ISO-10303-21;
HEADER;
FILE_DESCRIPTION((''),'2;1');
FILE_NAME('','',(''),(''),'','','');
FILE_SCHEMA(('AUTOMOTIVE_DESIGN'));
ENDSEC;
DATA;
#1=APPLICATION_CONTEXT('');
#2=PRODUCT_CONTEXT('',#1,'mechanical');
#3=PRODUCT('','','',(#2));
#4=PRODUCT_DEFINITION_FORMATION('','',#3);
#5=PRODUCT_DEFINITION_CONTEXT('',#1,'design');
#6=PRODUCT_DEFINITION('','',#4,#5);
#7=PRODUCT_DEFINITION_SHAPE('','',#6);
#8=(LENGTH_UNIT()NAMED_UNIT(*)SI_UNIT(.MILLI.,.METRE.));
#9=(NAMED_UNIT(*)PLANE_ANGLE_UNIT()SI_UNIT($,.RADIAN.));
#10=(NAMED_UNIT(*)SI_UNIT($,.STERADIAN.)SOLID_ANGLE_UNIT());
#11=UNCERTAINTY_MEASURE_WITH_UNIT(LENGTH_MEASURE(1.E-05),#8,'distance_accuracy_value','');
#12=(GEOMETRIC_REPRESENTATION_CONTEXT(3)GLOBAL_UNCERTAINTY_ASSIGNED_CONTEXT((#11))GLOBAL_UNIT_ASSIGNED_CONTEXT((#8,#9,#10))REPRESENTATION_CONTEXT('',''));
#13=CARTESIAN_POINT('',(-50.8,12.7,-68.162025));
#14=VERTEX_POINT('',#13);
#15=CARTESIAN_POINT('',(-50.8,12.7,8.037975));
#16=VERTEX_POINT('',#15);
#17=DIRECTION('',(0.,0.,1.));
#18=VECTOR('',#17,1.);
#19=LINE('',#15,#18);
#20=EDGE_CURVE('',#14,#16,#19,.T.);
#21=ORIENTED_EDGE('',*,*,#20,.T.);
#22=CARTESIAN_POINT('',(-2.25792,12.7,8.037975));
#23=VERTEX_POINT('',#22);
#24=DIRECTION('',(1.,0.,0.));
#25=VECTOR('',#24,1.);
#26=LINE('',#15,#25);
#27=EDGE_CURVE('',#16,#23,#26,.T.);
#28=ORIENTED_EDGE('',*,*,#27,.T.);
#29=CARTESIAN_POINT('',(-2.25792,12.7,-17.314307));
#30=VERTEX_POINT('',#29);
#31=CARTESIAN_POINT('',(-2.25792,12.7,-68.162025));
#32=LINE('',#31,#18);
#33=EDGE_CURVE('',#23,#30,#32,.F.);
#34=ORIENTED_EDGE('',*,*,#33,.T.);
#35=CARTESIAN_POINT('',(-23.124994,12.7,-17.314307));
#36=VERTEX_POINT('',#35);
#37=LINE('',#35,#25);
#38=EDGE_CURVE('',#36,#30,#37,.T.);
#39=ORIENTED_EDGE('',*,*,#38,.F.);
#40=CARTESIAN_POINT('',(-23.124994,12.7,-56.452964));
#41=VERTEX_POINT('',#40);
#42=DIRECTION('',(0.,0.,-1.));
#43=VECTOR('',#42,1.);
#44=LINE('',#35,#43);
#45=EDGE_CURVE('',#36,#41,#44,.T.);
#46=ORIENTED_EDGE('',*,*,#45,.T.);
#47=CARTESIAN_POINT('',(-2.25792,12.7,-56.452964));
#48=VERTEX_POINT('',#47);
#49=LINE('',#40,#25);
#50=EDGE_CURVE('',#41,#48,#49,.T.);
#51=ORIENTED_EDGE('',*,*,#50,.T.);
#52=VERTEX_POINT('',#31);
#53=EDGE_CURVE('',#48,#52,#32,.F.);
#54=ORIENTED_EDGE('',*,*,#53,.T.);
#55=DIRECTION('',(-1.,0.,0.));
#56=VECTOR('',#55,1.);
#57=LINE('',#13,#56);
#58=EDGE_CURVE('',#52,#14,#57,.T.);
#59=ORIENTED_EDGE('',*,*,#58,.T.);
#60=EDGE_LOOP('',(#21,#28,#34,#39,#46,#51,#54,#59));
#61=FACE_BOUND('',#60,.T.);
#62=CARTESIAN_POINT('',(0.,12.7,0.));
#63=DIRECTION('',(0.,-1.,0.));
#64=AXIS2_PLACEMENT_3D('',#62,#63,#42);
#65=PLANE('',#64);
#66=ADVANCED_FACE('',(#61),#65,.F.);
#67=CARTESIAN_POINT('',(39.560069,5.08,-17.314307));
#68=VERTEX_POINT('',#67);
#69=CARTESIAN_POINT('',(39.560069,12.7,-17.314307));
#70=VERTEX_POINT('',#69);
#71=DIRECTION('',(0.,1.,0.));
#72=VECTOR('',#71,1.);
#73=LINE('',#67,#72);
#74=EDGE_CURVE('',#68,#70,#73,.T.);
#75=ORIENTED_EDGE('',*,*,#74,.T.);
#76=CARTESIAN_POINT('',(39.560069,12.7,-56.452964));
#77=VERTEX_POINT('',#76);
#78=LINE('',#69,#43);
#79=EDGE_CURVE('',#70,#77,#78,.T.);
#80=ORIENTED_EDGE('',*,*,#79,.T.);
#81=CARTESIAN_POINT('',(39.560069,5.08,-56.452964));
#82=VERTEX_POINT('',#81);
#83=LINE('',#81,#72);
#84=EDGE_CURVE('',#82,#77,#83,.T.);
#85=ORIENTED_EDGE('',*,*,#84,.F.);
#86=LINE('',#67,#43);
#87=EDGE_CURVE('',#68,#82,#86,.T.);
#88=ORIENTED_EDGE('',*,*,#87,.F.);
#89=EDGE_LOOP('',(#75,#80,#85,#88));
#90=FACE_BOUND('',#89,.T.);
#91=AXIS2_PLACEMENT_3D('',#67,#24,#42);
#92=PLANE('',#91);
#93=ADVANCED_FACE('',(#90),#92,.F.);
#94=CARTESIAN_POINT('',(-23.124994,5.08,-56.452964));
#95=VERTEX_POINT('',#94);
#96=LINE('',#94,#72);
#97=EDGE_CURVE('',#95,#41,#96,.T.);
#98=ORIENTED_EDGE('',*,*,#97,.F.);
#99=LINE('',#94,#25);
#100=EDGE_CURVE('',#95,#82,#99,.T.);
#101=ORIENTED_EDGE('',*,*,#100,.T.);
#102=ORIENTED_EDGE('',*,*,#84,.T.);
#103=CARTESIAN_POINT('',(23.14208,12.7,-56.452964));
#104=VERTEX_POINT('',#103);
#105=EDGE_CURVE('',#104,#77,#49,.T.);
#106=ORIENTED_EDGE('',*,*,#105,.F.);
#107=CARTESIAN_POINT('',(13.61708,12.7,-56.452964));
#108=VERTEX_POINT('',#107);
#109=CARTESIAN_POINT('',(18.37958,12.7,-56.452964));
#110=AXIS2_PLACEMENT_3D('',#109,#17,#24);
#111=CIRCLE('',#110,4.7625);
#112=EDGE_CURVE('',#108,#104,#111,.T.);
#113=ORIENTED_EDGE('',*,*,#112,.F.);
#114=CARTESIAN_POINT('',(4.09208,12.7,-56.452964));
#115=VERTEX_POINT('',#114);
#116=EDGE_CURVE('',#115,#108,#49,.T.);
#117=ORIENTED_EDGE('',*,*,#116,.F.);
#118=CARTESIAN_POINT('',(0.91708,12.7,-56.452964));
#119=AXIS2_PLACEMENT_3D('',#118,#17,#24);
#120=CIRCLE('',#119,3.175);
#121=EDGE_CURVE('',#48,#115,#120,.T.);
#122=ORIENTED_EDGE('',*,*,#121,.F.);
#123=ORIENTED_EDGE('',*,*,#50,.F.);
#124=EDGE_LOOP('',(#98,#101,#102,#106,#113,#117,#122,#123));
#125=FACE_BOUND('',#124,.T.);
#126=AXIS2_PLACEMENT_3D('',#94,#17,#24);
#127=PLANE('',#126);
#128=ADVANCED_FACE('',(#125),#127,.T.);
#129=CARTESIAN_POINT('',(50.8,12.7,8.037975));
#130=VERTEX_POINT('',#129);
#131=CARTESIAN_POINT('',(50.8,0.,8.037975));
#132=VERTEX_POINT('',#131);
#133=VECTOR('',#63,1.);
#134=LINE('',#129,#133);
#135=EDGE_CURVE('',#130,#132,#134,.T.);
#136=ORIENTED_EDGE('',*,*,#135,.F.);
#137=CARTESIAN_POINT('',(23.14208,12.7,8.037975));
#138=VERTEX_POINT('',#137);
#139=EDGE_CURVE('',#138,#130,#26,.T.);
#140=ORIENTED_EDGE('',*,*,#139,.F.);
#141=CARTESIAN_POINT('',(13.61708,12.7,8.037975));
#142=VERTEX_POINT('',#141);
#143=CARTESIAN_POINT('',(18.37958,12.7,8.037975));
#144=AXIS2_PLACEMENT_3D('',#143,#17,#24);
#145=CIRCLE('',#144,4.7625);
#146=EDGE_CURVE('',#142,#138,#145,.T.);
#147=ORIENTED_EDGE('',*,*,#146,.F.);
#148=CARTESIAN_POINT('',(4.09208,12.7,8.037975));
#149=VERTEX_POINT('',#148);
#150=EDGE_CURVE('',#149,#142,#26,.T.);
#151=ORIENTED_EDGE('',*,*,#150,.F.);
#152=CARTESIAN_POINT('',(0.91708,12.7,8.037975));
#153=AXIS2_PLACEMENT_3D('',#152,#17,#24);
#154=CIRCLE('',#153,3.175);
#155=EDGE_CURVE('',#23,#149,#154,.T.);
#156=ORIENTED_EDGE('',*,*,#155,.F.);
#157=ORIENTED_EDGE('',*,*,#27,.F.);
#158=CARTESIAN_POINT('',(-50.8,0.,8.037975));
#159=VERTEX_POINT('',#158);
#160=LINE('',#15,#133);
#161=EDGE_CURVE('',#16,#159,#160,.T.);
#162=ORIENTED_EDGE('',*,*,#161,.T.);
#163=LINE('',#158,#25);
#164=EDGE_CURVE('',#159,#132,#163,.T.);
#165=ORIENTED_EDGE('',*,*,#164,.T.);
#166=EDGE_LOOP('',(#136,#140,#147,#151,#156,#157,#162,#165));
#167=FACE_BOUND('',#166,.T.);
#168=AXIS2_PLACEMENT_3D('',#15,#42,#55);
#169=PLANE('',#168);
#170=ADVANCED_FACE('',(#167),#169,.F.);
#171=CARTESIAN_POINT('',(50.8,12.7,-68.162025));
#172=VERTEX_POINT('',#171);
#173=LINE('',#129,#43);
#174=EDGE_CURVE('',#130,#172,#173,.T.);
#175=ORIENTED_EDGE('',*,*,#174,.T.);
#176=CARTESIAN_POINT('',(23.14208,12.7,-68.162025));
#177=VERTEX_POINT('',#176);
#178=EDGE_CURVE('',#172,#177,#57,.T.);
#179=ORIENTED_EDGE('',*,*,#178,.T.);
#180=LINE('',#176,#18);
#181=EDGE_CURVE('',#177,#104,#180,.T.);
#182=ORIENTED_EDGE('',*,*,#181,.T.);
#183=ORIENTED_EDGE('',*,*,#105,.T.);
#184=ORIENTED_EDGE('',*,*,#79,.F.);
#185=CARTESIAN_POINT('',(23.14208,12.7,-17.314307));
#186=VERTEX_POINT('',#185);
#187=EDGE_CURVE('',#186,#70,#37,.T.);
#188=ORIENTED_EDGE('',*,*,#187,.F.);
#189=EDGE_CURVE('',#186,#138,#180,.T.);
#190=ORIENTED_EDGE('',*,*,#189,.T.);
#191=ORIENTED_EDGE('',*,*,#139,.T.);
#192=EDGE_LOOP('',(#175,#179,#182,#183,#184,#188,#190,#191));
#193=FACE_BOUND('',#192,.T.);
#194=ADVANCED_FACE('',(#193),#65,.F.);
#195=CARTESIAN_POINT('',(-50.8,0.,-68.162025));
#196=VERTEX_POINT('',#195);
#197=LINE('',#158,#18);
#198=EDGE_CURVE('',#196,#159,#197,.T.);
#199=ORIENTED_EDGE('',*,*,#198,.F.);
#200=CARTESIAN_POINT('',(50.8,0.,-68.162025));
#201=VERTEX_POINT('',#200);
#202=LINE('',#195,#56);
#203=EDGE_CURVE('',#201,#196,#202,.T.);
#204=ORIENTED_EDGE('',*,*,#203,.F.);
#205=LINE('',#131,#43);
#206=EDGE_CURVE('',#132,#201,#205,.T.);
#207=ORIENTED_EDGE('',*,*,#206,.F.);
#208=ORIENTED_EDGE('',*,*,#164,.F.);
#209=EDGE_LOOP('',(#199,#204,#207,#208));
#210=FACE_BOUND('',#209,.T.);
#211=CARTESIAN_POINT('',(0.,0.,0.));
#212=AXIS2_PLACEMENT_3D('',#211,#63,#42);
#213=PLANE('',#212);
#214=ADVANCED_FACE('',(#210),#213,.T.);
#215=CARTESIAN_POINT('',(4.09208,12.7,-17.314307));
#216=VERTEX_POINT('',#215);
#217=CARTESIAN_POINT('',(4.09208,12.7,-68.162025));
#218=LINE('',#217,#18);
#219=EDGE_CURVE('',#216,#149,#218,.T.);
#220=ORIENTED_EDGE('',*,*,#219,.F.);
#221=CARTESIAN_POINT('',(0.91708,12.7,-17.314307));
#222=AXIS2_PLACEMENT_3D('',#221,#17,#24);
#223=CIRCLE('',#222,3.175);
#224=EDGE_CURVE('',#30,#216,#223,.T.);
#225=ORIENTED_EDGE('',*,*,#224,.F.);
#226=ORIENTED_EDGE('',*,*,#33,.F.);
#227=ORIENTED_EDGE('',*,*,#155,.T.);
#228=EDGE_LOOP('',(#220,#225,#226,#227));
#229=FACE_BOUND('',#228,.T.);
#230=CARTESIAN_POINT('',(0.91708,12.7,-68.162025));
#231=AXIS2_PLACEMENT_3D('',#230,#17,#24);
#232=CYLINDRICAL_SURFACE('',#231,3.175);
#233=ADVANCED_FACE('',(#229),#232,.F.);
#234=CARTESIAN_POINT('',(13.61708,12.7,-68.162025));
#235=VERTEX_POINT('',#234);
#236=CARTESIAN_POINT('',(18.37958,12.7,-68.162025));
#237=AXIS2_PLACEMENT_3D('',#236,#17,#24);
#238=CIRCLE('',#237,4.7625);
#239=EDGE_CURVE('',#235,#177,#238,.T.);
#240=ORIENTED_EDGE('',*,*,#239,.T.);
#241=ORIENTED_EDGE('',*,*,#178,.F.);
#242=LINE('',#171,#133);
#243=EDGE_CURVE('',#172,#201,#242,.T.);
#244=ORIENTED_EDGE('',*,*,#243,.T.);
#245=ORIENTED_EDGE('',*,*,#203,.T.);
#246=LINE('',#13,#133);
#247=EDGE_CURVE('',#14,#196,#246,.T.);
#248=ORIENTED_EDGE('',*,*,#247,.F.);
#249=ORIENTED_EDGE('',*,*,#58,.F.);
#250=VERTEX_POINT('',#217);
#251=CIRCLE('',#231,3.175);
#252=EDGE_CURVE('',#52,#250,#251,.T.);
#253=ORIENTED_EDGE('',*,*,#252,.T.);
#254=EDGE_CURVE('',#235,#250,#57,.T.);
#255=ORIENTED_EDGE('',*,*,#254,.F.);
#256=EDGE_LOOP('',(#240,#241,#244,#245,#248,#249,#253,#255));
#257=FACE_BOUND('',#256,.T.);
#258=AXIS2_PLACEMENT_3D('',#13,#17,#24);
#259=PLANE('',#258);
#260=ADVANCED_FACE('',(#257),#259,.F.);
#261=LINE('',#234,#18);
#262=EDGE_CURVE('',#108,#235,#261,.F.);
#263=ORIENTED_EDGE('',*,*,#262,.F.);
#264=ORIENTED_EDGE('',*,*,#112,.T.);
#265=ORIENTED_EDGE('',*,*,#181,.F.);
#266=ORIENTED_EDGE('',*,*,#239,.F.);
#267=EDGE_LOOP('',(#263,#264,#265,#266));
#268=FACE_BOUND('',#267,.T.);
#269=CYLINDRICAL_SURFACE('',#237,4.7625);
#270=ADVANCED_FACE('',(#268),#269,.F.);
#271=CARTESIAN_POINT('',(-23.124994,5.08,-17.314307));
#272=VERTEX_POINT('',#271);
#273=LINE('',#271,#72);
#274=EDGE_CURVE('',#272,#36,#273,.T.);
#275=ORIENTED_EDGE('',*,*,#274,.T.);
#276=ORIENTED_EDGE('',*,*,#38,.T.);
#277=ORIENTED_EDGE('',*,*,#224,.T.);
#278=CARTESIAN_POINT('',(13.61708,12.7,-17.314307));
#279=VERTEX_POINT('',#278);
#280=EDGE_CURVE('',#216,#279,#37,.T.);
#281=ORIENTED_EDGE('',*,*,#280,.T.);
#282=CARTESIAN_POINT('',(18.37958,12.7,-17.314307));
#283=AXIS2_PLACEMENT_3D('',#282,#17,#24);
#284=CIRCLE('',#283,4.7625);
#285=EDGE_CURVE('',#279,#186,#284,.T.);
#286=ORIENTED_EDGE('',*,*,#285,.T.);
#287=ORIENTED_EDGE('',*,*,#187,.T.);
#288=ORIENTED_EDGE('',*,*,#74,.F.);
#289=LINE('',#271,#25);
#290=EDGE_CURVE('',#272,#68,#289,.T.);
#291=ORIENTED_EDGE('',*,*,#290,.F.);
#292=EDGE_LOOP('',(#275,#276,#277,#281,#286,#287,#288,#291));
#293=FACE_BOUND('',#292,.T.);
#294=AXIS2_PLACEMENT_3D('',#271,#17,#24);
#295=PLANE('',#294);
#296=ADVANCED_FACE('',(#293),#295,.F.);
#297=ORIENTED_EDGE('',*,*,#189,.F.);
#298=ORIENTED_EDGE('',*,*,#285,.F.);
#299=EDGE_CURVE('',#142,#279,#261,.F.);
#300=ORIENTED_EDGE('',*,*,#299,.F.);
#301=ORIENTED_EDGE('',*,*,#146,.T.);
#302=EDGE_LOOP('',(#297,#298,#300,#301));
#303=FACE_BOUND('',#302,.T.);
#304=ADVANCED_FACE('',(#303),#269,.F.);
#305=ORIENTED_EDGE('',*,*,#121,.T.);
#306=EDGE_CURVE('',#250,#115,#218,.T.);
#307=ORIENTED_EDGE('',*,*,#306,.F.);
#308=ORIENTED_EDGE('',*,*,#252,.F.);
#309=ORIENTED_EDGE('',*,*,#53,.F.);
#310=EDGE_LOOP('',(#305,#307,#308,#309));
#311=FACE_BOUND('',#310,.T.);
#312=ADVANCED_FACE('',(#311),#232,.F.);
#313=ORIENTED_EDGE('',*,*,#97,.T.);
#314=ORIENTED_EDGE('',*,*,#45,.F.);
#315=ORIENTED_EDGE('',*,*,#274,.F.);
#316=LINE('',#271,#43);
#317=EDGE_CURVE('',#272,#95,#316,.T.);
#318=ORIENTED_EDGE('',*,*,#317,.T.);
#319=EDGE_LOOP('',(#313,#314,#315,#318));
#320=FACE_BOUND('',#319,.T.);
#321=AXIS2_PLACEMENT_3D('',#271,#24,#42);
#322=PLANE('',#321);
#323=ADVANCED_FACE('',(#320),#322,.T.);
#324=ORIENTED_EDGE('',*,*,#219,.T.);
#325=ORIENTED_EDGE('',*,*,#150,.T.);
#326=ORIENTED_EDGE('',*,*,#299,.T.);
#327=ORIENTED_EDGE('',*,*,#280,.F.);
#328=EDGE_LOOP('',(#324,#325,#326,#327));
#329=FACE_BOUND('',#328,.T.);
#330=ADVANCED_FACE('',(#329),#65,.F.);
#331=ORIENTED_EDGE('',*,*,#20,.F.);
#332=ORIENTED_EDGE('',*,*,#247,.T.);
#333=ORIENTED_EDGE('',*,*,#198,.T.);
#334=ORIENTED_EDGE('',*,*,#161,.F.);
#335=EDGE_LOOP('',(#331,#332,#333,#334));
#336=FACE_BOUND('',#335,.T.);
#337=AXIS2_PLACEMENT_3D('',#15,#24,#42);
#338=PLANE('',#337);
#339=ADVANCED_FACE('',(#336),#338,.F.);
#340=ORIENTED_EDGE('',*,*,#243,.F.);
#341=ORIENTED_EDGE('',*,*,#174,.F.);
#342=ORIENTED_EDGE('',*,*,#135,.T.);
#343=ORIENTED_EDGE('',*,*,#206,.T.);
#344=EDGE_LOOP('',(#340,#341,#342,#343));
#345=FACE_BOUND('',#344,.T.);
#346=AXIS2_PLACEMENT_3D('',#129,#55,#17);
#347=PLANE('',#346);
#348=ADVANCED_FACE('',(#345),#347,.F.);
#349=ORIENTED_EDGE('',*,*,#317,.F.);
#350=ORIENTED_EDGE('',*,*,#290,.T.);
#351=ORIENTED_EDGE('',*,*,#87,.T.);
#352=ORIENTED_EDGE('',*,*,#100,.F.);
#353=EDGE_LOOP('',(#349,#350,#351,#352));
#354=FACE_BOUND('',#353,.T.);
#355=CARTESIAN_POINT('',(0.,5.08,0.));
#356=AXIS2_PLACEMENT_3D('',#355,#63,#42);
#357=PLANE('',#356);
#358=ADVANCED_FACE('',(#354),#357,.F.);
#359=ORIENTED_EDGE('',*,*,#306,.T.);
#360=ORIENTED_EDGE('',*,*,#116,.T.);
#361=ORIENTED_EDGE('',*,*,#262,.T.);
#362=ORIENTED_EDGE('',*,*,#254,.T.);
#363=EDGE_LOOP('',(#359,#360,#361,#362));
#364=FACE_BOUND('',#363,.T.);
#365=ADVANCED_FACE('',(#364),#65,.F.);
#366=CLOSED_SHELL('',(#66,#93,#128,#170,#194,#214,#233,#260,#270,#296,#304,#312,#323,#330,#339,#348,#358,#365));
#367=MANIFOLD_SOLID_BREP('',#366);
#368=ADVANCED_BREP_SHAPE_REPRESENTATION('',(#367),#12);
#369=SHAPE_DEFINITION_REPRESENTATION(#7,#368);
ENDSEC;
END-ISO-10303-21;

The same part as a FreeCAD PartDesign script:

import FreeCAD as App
import Part
import Sketcher

V = App.Vector
Q = App.Units.Quantity

doc = App.newDocument("Part")
body = doc.addObject("PartDesign::Body", "Body")

sketch1 = body.newObject("Sketcher::SketchObject", "Sketch")
sketch1.AttachmentSupport = (doc.getObject("XZ_Plane"), [""])
sketch1.MapMode = "FlatFace"
sketch1.addGeometry(Part.LineSegment(V(-50.8, -68.162025, 0), V(-50.8, 8.037975, 0)), False)
sketch1.addGeometry(Part.LineSegment(V(-50.8, 8.037975, 0), V(50.8, 8.037975, 0)), False)
sketch1.addGeometry(Part.LineSegment(V(50.8, 8.037975, 0), V(50.8, -68.162025, 0)), False)
sketch1.addGeometry(Part.LineSegment(V(50.8, -68.162025, 0), V(-50.8, -68.162025, 0)), False)
sketch1.addConstraint(Sketcher.Constraint("Coincident", 0, 2, 1, 1))
sketch1.addConstraint(Sketcher.Constraint("Coincident", 1, 2, 2, 1))
sketch1.addConstraint(Sketcher.Constraint("Coincident", 2, 2, 3, 1))
sketch1.addConstraint(Sketcher.Constraint("Coincident", 3, 2, 0, 1))
sketch1.addConstraint(Sketcher.Constraint("Vertical", 0))
sketch1.addConstraint(Sketcher.Constraint("Horizontal", 1))
sketch1.addConstraint(Sketcher.Constraint("Vertical", 2))
sketch1.addConstraint(Sketcher.Constraint("Horizontal", 3))
sketch1.addConstraint(Sketcher.Constraint("DistanceX", 1, 1, 1, 2, Q("4 in")))
sketch1.addConstraint(Sketcher.Constraint("DistanceY", 0, 1, 0, 2, Q("3 in")))
sketch1.addConstraint(Sketcher.Constraint("DistanceX", 0, 2, -1, 1, Q("2 in")))
sketch1.addConstraint(Sketcher.Constraint("DistanceY", -1, 1, 0, 2, 8.037975))
pad1 = body.newObject("PartDesign::Pad", "Pad")
pad1.Profile = sketch1
pad1.Length = Q("0.5 in")
pad1.Reversed = True

sketch2 = body.newObject("Sketcher::SketchObject", "Sketch001")
sketch2.AttachmentSupport = (doc.getObject("XZ_Plane"), [""])
sketch2.MapMode = "FlatFace"
sketch2.AttachmentOffset = App.Placement(V(0, 0, -0.5 * 25.4), App.Rotation())
sketch2.addGeometry(Part.LineSegment(V(-23.124994, -56.452964, 0), V(-23.124994, -17.314307, 0)), False)
sketch2.addGeometry(Part.LineSegment(V(-23.124994, -17.314307, 0), V(39.560069, -17.314307, 0)), False)
sketch2.addGeometry(Part.LineSegment(V(39.560069, -17.314307, 0), V(39.560069, -56.452964, 0)), False)
sketch2.addGeometry(Part.LineSegment(V(39.560069, -56.452964, 0), V(-23.124994, -56.452964, 0)), False)
sketch2.addConstraint(Sketcher.Constraint("Coincident", 0, 2, 1, 1))
sketch2.addConstraint(Sketcher.Constraint("Coincident", 1, 2, 2, 1))
sketch2.addConstraint(Sketcher.Constraint("Coincident", 2, 2, 3, 1))
sketch2.addConstraint(Sketcher.Constraint("Coincident", 3, 2, 0, 1))
sketch2.addConstraint(Sketcher.Constraint("Vertical", 0))
sketch2.addConstraint(Sketcher.Constraint("Horizontal", 1))
sketch2.addConstraint(Sketcher.Constraint("Vertical", 2))
sketch2.addConstraint(Sketcher.Constraint("Horizontal", 3))
sketch2.addConstraint(Sketcher.Constraint("DistanceX", 1, 1, 1, 2, 62.685063))
sketch2.addConstraint(Sketcher.Constraint("DistanceY", 0, 1, 0, 2, 39.138657))
sketch2.addConstraint(Sketcher.Constraint("DistanceX", -1, 1, 1, 2, 39.560069))
sketch2.addConstraint(Sketcher.Constraint("DistanceY", 0, 2, -1, 1, 17.314307))
pocket1 = body.newObject("PartDesign::Pocket", "Pocket")
pocket1.Profile = sketch2
pocket1.Length = Q("0.3 in")
pocket1.Reversed = True

sketch3 = body.newObject("Sketcher::SketchObject", "Sketch002")
sketch3.AttachmentSupport = (doc.getObject("XY_Plane"), [""])
sketch3.MapMode = "FlatFace"
sketch3.AttachmentOffset = App.Placement(V(0, 0, 8.037975), App.Rotation())
sketch3.addGeometry(Part.Circle(V(0.91708, 12.7, 0), V(0, 0, 1), 3.175), False)
sketch3.addGeometry(Part.Circle(V(18.37958, 12.7, 0), V(0, 0, 1), 4.7625), False)
sketch3.addConstraint(Sketcher.Constraint("Horizontal", 0, 3, 1, 3))
sketch3.addConstraint(Sketcher.Constraint("Diameter", 0, Q("0.25 in")))
sketch3.addConstraint(Sketcher.Constraint("Diameter", 1, Q("0.375 in")))
sketch3.addConstraint(Sketcher.Constraint("DistanceY", -1, 1, 0, 3, Q("0.5 in")))
sketch3.addConstraint(Sketcher.Constraint("DistanceX", 0, 3, 1, 3, Q("0.6875 in")))
sketch3.addConstraint(Sketcher.Constraint("DistanceX", -1, 1, 0, 3, 0.91708))
pocket2 = body.newObject("PartDesign::Pocket", "Pocket001")
pocket2.Profile = sketch3
pocket2.Type = "ThroughAll"

doc.recompute()
